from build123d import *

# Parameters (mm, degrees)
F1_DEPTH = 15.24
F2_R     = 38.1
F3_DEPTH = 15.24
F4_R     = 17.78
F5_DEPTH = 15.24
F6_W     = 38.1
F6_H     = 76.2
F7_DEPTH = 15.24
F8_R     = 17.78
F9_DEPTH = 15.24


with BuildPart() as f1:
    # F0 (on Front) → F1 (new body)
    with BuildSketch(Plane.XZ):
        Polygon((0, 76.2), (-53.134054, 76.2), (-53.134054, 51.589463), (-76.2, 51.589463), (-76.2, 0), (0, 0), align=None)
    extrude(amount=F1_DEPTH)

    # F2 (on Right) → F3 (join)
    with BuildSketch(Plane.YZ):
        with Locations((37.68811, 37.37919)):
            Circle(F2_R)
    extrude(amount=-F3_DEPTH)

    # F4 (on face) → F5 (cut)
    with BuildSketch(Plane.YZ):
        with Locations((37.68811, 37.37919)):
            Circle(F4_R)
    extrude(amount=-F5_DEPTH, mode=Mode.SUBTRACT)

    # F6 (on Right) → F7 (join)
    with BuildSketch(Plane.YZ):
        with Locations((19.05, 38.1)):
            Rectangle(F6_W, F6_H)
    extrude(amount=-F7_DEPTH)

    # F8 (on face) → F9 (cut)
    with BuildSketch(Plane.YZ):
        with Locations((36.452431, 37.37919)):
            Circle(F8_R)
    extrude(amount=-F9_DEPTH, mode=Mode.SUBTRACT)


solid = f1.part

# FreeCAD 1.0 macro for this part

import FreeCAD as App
import Part
import Sketcher
Q = App.Units.Quantity

doc = App.newDocument("Part")
body = doc.addObject("PartDesign::Body", "Body")

# Sketch on XZ plane
sketch1 = doc.addObject("Sketcher::SketchObject", "Sketch")
body.addObject(sketch1)
sketch1.AttachmentSupport = (doc.XZ_Plane, [""])
sketch1.MapMode = "FlatFace"
sketch1.addGeometry([
    Part.LineSegment(App.Vector(0, 76, 0), App.Vector(-53, 76, 0)),  # 0
    Part.LineSegment(App.Vector(-53, 76, 0), App.Vector(-53, 52, 0)),  # 1
    Part.LineSegment(App.Vector(-53, 52, 0), App.Vector(-76, 52, 0)),  # 2
    Part.LineSegment(App.Vector(-76, 52, 0), App.Vector(-76, 0, 0)),  # 3
    Part.LineSegment(App.Vector(-76, 0, 0), App.Vector(0, 0, 0)),  # 4
    Part.LineSegment(App.Vector(0, 0, 0), App.Vector(0, 76, 0)),  # 5
], False)
sketch1.addConstraint([
    Sketcher.Constraint("Coincident", 0, 2, 1, 1),
    Sketcher.Constraint("Coincident", 1, 2, 2, 1),
    Sketcher.Constraint("Coincident", 2, 2, 3, 1),
    Sketcher.Constraint("Coincident", 3, 2, 4, 1),
    Sketcher.Constraint("Coincident", 4, 2, 5, 1),
    Sketcher.Constraint("Coincident", 5, 2, 0, 1),
    Sketcher.Constraint("Horizontal", 0),
    Sketcher.Constraint("Vertical", 1),
    Sketcher.Constraint("Horizontal", 2),
    Sketcher.Constraint("Vertical", 3),
    Sketcher.Constraint("Horizontal", 4),
    Sketcher.Constraint("Vertical", 5),
    Sketcher.Constraint("Coincident", 4, 2, -1, 1),
    Sketcher.Constraint("Equal", 4, 5),
    Sketcher.Constraint("DistanceX", 4, 1, 4, 2, Q("3 in")),
    Sketcher.Constraint("DistanceX", 0, 2, 0, 1, 53.134054),
    Sketcher.Constraint("DistanceY", 1, 2, 1, 1, 24.610537),
])
pad1 = doc.addObject("PartDesign::Pad", "Pad")
body.addObject(pad1)
pad1.Profile = sketch1
pad1.Length = Q("0.6 in")

# Sketch on YZ plane
sketch2 = doc.addObject("Sketcher::SketchObject", "Sketch001")
body.addObject(sketch2)
sketch2.AttachmentSupport = (doc.YZ_Plane, [""])
sketch2.MapMode = "FlatFace"
sketch2.addGeometry(Part.Circle(App.Vector(38, 37, 0), App.Vector(0, 0, 1), 38), False)
sketch2.addConstraint([
    Sketcher.Constraint("Diameter", 0, Q("3 in")),
    Sketcher.Constraint("DistanceX", -1, 1, 0, 3, 37.68811),
    Sketcher.Constraint("DistanceY", -1, 1, 0, 3, 37.37919),
])
pad2 = doc.addObject("PartDesign::Pad", "Pad001")
body.addObject(pad2)
pad2.Profile = sketch2
pad2.Length = Q("0.6 in")
pad2.Reversed = True

# Sketch on YZ plane
sketch3 = doc.addObject("Sketcher::SketchObject", "Sketch002")
body.addObject(sketch3)
sketch3.AttachmentSupport = (doc.YZ_Plane, [""])
sketch3.MapMode = "FlatFace"
sketch3.addGeometry(Part.Circle(App.Vector(38, 37, 0), App.Vector(0, 0, 1), 18), False)
sketch3.addConstraint([
    Sketcher.Constraint("Diameter", 0, Q("1.4 in")),
    Sketcher.Constraint("DistanceX", -1, 1, 0, 3, 37.68811),
    Sketcher.Constraint("DistanceY", -1, 1, 0, 3, 37.37919),
])
pocket1 = doc.addObject("PartDesign::Pocket", "Pocket")
body.addObject(pocket1)
pocket1.Profile = sketch3
pocket1.Length = Q("0.6 in")

# Sketch on YZ plane
sketch4 = doc.addObject("Sketcher::SketchObject", "Sketch003")
body.addObject(sketch4)
sketch4.AttachmentSupport = (doc.YZ_Plane, [""])
sketch4.MapMode = "FlatFace"
sketch4.addGeometry([
    Part.LineSegment(App.Vector(0, 76, 0), App.Vector(0, 0, 0)),
    Part.LineSegment(App.Vector(0, 0, 0), App.Vector(38, 0, 0)),
    Part.LineSegment(App.Vector(38, 0, 0), App.Vector(38, 76, 0)),
    Part.LineSegment(App.Vector(38, 76, 0), App.Vector(0, 76, 0)),
], False)
sketch4.addConstraint([
    Sketcher.Constraint("Coincident", 0, 2, 1, 1),
    Sketcher.Constraint("Coincident", 1, 2, 2, 1),
    Sketcher.Constraint("Coincident", 2, 2, 3, 1),
    Sketcher.Constraint("Coincident", 3, 2, 0, 1),
    Sketcher.Constraint("Vertical", 0),
    Sketcher.Constraint("Horizontal", 1),
    Sketcher.Constraint("Vertical", 2),
    Sketcher.Constraint("Horizontal", 3),
    Sketcher.Constraint("Coincident", 0, 2, -1, 1),
    Sketcher.Constraint("DistanceY", 0, 2, 0, 1, Q("3 in")),
    Sketcher.Constraint("DistanceX", 1, 1, 1, 2, Q("1.5 in")),
])
pad3 = doc.addObject("PartDesign::Pad", "Pad002")
body.addObject(pad3)
pad3.Profile = sketch4
pad3.Length = Q("0.6 in")
pad3.Reversed = True

# Sketch on YZ plane
sketch5 = doc.addObject("Sketcher::SketchObject", "Sketch004")
body.addObject(sketch5)
sketch5.AttachmentSupport = (doc.YZ_Plane, [""])
sketch5.MapMode = "FlatFace"
sketch5.addGeometry(Part.Circle(App.Vector(36, 37, 0), App.Vector(0, 0, 1), 18), False)
sketch5.addConstraint([
    Sketcher.Constraint("Diameter", 0, Q("1.4 in")),
    Sketcher.Constraint("DistanceX", -1, 1, 0, 3, 36.452431),
    Sketcher.Constraint("DistanceY", -1, 1, 0, 3, 37.37919),
])
pocket2 = doc.addObject("PartDesign::Pocket", "Pocket001")
body.addObject(pocket2)
pocket2.Profile = sketch5
pocket2.Length = Q("0.6 in")

doc.recompute()
